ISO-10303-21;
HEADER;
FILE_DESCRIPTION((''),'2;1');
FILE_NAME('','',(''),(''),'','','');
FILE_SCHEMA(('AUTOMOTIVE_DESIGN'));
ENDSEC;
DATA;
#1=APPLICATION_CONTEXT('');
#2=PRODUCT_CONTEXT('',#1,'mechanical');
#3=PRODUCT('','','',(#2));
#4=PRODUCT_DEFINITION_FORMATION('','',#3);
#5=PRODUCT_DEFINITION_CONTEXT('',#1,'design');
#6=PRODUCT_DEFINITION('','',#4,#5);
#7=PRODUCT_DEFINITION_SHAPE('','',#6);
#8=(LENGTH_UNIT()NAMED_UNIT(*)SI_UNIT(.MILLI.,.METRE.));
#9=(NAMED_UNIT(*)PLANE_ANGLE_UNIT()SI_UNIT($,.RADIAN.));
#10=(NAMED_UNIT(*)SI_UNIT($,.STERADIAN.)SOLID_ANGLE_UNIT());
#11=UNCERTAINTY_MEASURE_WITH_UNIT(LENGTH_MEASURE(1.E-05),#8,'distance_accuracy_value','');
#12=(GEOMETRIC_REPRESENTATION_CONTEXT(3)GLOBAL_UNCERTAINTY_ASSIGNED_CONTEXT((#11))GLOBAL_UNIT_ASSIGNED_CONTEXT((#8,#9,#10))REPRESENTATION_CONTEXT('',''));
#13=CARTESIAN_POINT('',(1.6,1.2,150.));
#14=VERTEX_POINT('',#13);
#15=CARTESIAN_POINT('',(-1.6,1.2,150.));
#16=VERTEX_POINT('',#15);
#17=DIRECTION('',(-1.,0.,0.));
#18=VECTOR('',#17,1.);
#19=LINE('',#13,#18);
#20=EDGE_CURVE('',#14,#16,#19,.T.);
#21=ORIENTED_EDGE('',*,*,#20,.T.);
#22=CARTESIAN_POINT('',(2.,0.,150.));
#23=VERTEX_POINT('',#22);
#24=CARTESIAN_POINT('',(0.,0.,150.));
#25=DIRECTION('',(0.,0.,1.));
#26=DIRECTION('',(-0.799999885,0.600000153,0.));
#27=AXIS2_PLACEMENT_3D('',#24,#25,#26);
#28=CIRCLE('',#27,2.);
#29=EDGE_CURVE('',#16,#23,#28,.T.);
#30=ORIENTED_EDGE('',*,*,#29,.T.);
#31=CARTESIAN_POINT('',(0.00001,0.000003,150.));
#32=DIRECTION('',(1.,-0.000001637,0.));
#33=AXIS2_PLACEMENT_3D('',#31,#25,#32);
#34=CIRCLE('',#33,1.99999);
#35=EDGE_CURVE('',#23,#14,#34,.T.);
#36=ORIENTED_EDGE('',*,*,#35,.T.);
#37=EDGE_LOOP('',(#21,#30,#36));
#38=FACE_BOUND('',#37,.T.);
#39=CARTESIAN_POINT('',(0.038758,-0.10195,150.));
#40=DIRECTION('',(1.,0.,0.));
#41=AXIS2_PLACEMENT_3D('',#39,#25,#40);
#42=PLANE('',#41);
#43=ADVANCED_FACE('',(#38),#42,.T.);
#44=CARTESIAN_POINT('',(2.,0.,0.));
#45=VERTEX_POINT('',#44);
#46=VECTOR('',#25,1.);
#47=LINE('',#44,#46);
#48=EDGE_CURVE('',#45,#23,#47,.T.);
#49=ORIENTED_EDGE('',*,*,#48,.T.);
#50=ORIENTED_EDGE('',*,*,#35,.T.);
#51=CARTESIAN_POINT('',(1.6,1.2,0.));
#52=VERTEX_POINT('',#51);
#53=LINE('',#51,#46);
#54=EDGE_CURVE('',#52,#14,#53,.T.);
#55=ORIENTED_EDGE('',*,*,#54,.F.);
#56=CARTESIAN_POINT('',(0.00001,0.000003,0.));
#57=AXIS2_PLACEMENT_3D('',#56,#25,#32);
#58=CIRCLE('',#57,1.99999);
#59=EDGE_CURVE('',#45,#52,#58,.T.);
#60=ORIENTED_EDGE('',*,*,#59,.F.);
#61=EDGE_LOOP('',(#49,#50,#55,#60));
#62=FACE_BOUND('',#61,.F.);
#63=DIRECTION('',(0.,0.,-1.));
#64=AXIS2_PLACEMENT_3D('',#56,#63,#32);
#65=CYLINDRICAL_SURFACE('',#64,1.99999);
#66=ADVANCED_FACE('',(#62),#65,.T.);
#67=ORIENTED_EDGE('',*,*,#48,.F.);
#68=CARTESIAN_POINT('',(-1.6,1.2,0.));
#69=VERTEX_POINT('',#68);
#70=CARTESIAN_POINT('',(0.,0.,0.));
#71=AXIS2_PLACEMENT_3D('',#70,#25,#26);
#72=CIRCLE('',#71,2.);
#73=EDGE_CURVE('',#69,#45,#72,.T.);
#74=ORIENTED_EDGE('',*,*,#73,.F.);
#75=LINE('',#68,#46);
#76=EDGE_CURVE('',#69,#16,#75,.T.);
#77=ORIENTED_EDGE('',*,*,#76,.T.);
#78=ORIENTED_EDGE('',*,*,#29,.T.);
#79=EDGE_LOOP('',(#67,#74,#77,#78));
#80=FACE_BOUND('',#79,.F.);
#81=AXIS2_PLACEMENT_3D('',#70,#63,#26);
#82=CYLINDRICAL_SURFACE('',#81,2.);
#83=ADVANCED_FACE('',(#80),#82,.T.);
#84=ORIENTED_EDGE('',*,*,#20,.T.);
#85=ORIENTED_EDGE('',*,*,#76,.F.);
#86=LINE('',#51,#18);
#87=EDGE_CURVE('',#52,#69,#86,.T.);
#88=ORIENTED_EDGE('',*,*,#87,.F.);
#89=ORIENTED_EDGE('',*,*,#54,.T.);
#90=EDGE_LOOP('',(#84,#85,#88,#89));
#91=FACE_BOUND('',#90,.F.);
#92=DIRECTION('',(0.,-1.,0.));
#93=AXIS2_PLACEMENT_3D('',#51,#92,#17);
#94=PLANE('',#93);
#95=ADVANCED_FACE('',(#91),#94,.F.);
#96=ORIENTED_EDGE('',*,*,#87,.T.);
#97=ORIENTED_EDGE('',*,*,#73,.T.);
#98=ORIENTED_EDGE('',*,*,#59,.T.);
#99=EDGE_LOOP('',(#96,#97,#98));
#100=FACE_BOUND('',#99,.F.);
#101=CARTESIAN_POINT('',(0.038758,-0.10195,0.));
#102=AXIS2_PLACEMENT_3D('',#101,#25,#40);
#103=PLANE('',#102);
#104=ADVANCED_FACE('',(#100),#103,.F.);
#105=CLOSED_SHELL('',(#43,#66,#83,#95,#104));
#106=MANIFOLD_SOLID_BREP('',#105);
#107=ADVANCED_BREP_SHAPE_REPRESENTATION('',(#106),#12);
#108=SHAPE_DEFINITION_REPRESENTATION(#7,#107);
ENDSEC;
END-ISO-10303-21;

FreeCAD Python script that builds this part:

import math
import FreeCAD as App
import Part
import Sketcher

doc = App.newDocument("Part")
body = doc.addObject("PartDesign::Body", "Body")

# Sketch on XY plane
sketch1 = body.newObject("Sketcher::SketchObject", "Sketch")
sketch1.AttachmentSupport = (doc.getObject("XY_Plane"), [""])
sketch1.MapMode = "FlatFace"
sketch1.addGeometry([
    Part.ArcOfCircle(Part.Circle(App.Vector(0, 0, 0), App.Vector(0, 0, 1), 2), math.radians(143), math.radians(360)),
    Part.ArcOfCircle(Part.Circle(App.Vector(0, 0, 0), App.Vector(0, 0, 1), 2), math.radians(0), math.radians(37)),
    Part.LineSegment(App.Vector(1.6, 1.2, 0), App.Vector(-1.6, 1.2, 0)),
], False)
sketch1.addConstraint([
    Sketcher.Constraint("Tangent", 0, 2, 1, 1),
    Sketcher.Constraint("Coincident", 1, 2, 2, 1),
    Sketcher.Constraint("Coincident", 2, 2, 0, 1),
    Sketcher.Constraint("Horizontal", 2),
    Sketcher.Constraint("Coincident", 0, 3, -1, 1),
    Sketcher.Constraint("PointOnObject", 0, 2, -1),
    Sketcher.Constraint("Radius", 0, 2.0),
    Sketcher.Constraint("DistanceX", 2, 2, 2, 1, 3.2),
    Sketcher.Constraint("DistanceX", -1, 1, 1, 2, 1.6),
])
pad1 = body.newObject("PartDesign::Pad", "Pad")
pad1.Profile = sketch1
pad1.Length = 150

doc.recompute()
